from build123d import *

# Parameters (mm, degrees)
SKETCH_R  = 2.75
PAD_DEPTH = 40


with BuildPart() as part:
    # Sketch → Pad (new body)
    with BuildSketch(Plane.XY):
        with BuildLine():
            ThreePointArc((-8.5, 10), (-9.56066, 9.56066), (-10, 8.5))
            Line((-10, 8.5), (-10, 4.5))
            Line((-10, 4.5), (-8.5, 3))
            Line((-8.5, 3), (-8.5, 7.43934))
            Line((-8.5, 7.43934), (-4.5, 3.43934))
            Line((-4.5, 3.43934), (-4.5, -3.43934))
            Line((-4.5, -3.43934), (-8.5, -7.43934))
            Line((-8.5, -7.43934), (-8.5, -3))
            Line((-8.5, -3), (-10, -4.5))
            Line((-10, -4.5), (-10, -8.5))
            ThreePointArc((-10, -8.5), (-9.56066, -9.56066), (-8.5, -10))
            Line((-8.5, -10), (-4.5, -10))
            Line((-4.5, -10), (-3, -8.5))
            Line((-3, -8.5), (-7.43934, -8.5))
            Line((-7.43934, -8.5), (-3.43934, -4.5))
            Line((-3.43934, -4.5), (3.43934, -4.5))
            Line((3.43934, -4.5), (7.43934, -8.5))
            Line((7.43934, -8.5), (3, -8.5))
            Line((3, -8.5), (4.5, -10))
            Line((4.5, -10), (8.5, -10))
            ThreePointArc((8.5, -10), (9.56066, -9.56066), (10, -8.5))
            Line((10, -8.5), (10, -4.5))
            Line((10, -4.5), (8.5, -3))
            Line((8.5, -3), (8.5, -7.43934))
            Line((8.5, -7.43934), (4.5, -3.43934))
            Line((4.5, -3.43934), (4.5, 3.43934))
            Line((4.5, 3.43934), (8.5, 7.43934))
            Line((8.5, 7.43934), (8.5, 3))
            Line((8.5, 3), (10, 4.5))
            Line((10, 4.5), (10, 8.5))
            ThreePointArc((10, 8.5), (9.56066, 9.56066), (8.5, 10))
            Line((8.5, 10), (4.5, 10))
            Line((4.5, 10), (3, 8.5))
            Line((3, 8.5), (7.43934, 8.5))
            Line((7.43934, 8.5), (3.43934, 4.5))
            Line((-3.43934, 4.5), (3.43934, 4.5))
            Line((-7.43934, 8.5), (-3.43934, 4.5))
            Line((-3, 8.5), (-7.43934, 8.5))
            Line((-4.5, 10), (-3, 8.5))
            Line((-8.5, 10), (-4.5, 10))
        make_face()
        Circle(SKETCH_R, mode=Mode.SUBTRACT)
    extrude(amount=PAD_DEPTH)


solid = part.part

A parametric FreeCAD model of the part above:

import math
import FreeCAD as App
import Part
import Sketcher
from FreeCAD import Vector
Q = App.Units.Quantity

doc = App.newDocument("Part")
body = doc.addObject("PartDesign::Body", "Body")

sketch1 = body.newObject("Sketcher::SketchObject", "Sketch")
sketch1.AttachmentSupport = (doc.getObject("XY_Plane"), [""])
sketch1.MapMode = "FlatFace"
sketch1.addGeometry([
    Part.ArcOfCircle(Part.Circle(Vector(-8.5, 8.5, 0), Vector(0, 0, 1), 1.5), math.radians(90), math.radians(180)),
    Part.LineSegment(Vector(-10, 8.5, 0), Vector(-10, 4.5, 0)),
    Part.LineSegment(Vector(-10, 4.5, 0), Vector(-8.5, 3, 0)),
    Part.LineSegment(Vector(-8.5, 3, 0), Vector(-8.5, 7.4, 0)),
    Part.LineSegment(Vector(-8.5, 7.4, 0), Vector(-4.5, 3.4, 0)),
    Part.LineSegment(Vector(-4.5, 3.4, 0), Vector(-4.5, -3.4, 0)),
    Part.LineSegment(Vector(-4.5, -3.4, 0), Vector(-8.5, -7.4, 0)),
    Part.LineSegment(Vector(-8.5, -7.4, 0), Vector(-8.5, -3, 0)),
    Part.LineSegment(Vector(-8.5, -3, 0), Vector(-10, -4.5, 0)),
    Part.LineSegment(Vector(-10, -4.5, 0), Vector(-10, -8.5, 0)),
    Part.ArcOfCircle(Part.Circle(Vector(-8.5, -8.5, 0), Vector(0, 0, 1), 1.5), math.radians(-180), math.radians(-90)),
    Part.LineSegment(Vector(-8.5, -10, 0), Vector(-4.5, -10, 0)),
    Part.LineSegment(Vector(-4.5, -10, 0), Vector(-3, -8.5, 0)),
    Part.LineSegment(Vector(-3, -8.5, 0), Vector(-7.4, -8.5, 0)),
    Part.LineSegment(Vector(-7.4, -8.5, 0), Vector(-3.4, -4.5, 0)),
    Part.LineSegment(Vector(-3.4, -4.5, 0), Vector(3.4, -4.5, 0)),
    Part.LineSegment(Vector(3.4, -4.5, 0), Vector(7.4, -8.5, 0)),
    Part.LineSegment(Vector(7.4, -8.5, 0), Vector(3, -8.5, 0)),
    Part.LineSegment(Vector(3, -8.5, 0), Vector(4.5, -10, 0)),
    Part.LineSegment(Vector(4.5, -10, 0), Vector(8.5, -10, 0)),
    Part.ArcOfCircle(Part.Circle(Vector(8.5, -8.5, 0), Vector(0, 0, 1), 1.5), math.radians(-90), math.radians(0)),
    Part.LineSegment(Vector(10, -8.5, 0), Vector(10, -4.5, 0)),
    Part.LineSegment(Vector(10, -4.5, 0), Vector(8.5, -3, 0)),
    Part.LineSegment(Vector(8.5, -3, 0), Vector(8.5, -7.4, 0)),
    Part.LineSegment(Vector(8.5, -7.4, 0), Vector(4.5, -3.4, 0)),
    Part.LineSegment(Vector(4.5, -3.4, 0), Vector(4.5, 3.4, 0)),
    Part.LineSegment(Vector(4.5, 3.4, 0), Vector(8.5, 7.4, 0)),
    Part.LineSegment(Vector(8.5, 7.4, 0), Vector(8.5, 3, 0)),
    Part.LineSegment(Vector(8.5, 3, 0), Vector(10, 4.5, 0)),
    Part.LineSegment(Vector(10, 4.5, 0), Vector(10, 8.5, 0)),
    Part.ArcOfCircle(Part.Circle(Vector(8.5, 8.5, 0), Vector(0, 0, 1), 1.5), math.radians(0), math.radians(90)),
    Part.LineSegment(Vector(8.5, 10, 0), Vector(4.5, 10, 0)),
    Part.LineSegment(Vector(4.5, 10, 0), Vector(3, 8.5, 0)),
    Part.LineSegment(Vector(3, 8.5, 0), Vector(7.4, 8.5, 0)),
    Part.LineSegment(Vector(7.4, 8.5, 0), Vector(3.4, 4.5, 0)),
    Part.LineSegment(Vector(3.4, 4.5, 0), Vector(-3.4, 4.5, 0)),
    Part.LineSegment(Vector(-3.4, 4.5, 0), Vector(-7.4, 8.5, 0)),
    Part.LineSegment(Vector(-7.4, 8.5, 0), Vector(-3, 8.5, 0)),
    Part.LineSegment(Vector(-3, 8.5, 0), Vector(-4.5, 10, 0)),
    Part.LineSegment(Vector(-4.5, 10, 0), Vector(-8.5, 10, 0)),
    Part.Circle(Vector(0, 0, 0), Vector(0, 0, 1), 2.8),
], False)
sketch1.addConstraint([
    Sketcher.Constraint("Tangent", 0, 2, 1, 1),
    Sketcher.Constraint("Coincident", 1, 2, 2, 1),
    Sketcher.Constraint("Coincident", 2, 2, 3, 1),
    Sketcher.Constraint("Coincident", 3, 2, 4, 1),
    Sketcher.Constraint("Coincident", 4, 2, 5, 1),
    Sketcher.Constraint("Coincident", 5, 2, 6, 1),
    Sketcher.Constraint("Coincident", 6, 2, 7, 1),
    Sketcher.Constraint("Coincident", 7, 2, 8, 1),
    Sketcher.Constraint("Coincident", 8, 2, 9, 1),
    Sketcher.Constraint("Tangent", 9, 2, 10, 1),
    Sketcher.Constraint("Tangent", 10, 2, 11, 1),
    Sketcher.Constraint("Coincident", 11, 2, 12, 1),
    Sketcher.Constraint("Coincident", 12, 2, 13, 1),
    Sketcher.Constraint("Coincident", 13, 2, 14, 1),
    Sketcher.Constraint("Coincident", 14, 2, 15, 1),
    Sketcher.Constraint("Coincident", 15, 2, 16, 1),
    Sketcher.Constraint("Coincident", 16, 2, 17, 1),
    Sketcher.Constraint("Coincident", 17, 2, 18, 1),
    Sketcher.Constraint("Coincident", 18, 2, 19, 1),
    Sketcher.Constraint("Tangent", 19, 2, 20, 1),
    Sketcher.Constraint("Tangent", 20, 2, 21, 1),
    Sketcher.Constraint("Coincident", 21, 2, 22, 1),
    Sketcher.Constraint("Coincident", 22, 2, 23, 1),
    Sketcher.Constraint("Coincident", 23, 2, 24, 1),
    Sketcher.Constraint("Coincident", 24, 2, 25, 1),
    Sketcher.Constraint("Coincident", 25, 2, 26, 1),
    Sketcher.Constraint("Coincident", 26, 2, 27, 1),
    Sketcher.Constraint("Coincident", 27, 2, 28, 1),
    Sketcher.Constraint("Coincident", 28, 2, 29, 1),
    Sketcher.Constraint("Tangent", 29, 2, 30, 1),
    Sketcher.Constraint("Tangent", 30, 2, 31, 1),
    Sketcher.Constraint("Coincident", 31, 2, 32, 1),
    Sketcher.Constraint("Coincident", 32, 2, 33, 1),
    Sketcher.Constraint("Coincident", 33, 2, 34, 1),
    Sketcher.Constraint("Coincident", 34, 2, 35, 1),
    Sketcher.Constraint("Coincident", 35, 2, 36, 1),
    Sketcher.Constraint("Coincident", 36, 2, 37, 1),
    Sketcher.Constraint("Coincident", 37, 2, 38, 1),
    Sketcher.Constraint("Coincident", 38, 2, 39, 1),
    Sketcher.Constraint("Tangent", 39, 2, 0, 1),
    Sketcher.Constraint("Vertical", 1),
    Sketcher.Constraint("Vertical", 3),
    Sketcher.Constraint("Vertical", 5),
    Sketcher.Constraint("Vertical", 7),
    Sketcher.Constraint("Vertical", 9),
    Sketcher.Constraint("Horizontal", 11),
    Sketcher.Constraint("Horizontal", 13),
    Sketcher.Constraint("Horizontal", 15),
    Sketcher.Constraint("Horizontal", 17),
    Sketcher.Constraint("Horizontal", 19),
    Sketcher.Constraint("Vertical", 21),
    Sketcher.Constraint("Vertical", 23),
    Sketcher.Constraint("Vertical", 25),
    Sketcher.Constraint("Vertical", 27),
    Sketcher.Constraint("Vertical", 29),
    Sketcher.Constraint("Horizontal", 31),
    Sketcher.Constraint("Horizontal", 33),
    Sketcher.Constraint("Horizontal", 35),
    Sketcher.Constraint("Horizontal", 37),
    Sketcher.Constraint("Horizontal", 39),
    Sketcher.Constraint("Coincident", 40, 3, -1, 1),
    Sketcher.Constraint("Equal", 0, 10),
    Sketcher.Constraint("Equal", 10, 20),
    Sketcher.Constraint("Equal", 20, 30),
    Sketcher.Constraint("Symmetric", 0, 3, 20, 3, -1, 1),
    Sketcher.Constraint("Symmetric", 10, 3, 30, 3, -1, 1),
    Sketcher.Constraint("Symmetric", 2, 2, 22, 2, -1, 1),
    Sketcher.Constraint("Symmetric", 4, 2, 24, 2, -1, 1),
    Sketcher.Constraint("Symmetric", 6, 2, 26, 2, -1, 1),
    Sketcher.Constraint("Symmetric", 12, 2, 32, 2, -1, 1),
    Sketcher.Constraint("Symmetric", 14, 2, 34, 2, -1, 1),
    Sketcher.Constraint("Symmetric", 16, 2, 36, 2, -1, 1),
    Sketcher.Constraint("Symmetric", 10, 3, 20, 3, -2),
    Sketcher.Constraint("Symmetric", 13, 2, 16, 2, -2),
    Sketcher.Constraint("Symmetric", 7, 2, 22, 2, -2),
    Sketcher.Constraint("Parallel", 2, 4),
    Sketcher.Constraint("Perpendicular", 4, 6),
    Sketcher.Constraint("Parallel", 6, 8),
    Sketcher.Constraint("Parallel", 8, 12),
    Sketcher.Constraint("Parallel", 12, 14),
    Sketcher.Constraint("Perpendicular", 14, 16),
    Sketcher.Constraint("Parallel", 16, 18),
    Sketcher.Constraint("Parallel", 18, 22),
    Sketcher.Constraint("Parallel", 22, 24),
    Sketcher.Constraint("Perpendicular", 24, 26),
    Sketcher.Constraint("Parallel", 26, 28),
    Sketcher.Constraint("Parallel", 28, 32),
    Sketcher.Constraint("Parallel", 32, 34),
    Sketcher.Constraint("Perpendicular", 34, 36),
    Sketcher.Constraint("Parallel", 36, 38),
    Sketcher.Constraint("Horizontal", 9, 2, 12, 2),
    Sketcher.Constraint("Horizontal", 8, 2, 14, 2),
    Sketcher.Constraint("Horizontal", 15, 2, 21, 2),
    Sketcher.Constraint("Horizontal", 6, 2, 23, 2),
    Sketcher.Constraint("Horizontal", 2, 2, 27, 2),
    Sketcher.Constraint("Vertical", 10, 3, 2, 2),
    Sketcher.Constraint("Vertical", 5, 2, 11, 2),
    Sketcher.Constraint("Vertical", 18, 2, 24, 2),
    Sketcher.Constraint("Vertical", 12, 2, 37, 2),
    Sketcher.Constraint("Equal", 39, 1),
    Sketcher.Constraint("Equal", 37, 3),
    Sketcher.Constraint("Equal", 35, 5),
    Sketcher.Constraint("Diameter", 40, Q("5.5 mm")),
    Sketcher.Constraint("Radius", 0, Q("1.500001 mm")),
    Sketcher.Constraint("DistanceX", 11, 1, 11, 2, Q("4 mm")),
    Sketcher.Constraint("DistanceX", 0, 2, -1, 1, Q("10 mm")),
    Sketcher.Constraint("DistanceX", 13, 2, 13, 1, Q("4.43934 mm")),
])
pad1 = body.newObject("PartDesign::Pad", "Pad")
pad1.Profile = sketch1
pad1.Length = 40

doc.recompute()
